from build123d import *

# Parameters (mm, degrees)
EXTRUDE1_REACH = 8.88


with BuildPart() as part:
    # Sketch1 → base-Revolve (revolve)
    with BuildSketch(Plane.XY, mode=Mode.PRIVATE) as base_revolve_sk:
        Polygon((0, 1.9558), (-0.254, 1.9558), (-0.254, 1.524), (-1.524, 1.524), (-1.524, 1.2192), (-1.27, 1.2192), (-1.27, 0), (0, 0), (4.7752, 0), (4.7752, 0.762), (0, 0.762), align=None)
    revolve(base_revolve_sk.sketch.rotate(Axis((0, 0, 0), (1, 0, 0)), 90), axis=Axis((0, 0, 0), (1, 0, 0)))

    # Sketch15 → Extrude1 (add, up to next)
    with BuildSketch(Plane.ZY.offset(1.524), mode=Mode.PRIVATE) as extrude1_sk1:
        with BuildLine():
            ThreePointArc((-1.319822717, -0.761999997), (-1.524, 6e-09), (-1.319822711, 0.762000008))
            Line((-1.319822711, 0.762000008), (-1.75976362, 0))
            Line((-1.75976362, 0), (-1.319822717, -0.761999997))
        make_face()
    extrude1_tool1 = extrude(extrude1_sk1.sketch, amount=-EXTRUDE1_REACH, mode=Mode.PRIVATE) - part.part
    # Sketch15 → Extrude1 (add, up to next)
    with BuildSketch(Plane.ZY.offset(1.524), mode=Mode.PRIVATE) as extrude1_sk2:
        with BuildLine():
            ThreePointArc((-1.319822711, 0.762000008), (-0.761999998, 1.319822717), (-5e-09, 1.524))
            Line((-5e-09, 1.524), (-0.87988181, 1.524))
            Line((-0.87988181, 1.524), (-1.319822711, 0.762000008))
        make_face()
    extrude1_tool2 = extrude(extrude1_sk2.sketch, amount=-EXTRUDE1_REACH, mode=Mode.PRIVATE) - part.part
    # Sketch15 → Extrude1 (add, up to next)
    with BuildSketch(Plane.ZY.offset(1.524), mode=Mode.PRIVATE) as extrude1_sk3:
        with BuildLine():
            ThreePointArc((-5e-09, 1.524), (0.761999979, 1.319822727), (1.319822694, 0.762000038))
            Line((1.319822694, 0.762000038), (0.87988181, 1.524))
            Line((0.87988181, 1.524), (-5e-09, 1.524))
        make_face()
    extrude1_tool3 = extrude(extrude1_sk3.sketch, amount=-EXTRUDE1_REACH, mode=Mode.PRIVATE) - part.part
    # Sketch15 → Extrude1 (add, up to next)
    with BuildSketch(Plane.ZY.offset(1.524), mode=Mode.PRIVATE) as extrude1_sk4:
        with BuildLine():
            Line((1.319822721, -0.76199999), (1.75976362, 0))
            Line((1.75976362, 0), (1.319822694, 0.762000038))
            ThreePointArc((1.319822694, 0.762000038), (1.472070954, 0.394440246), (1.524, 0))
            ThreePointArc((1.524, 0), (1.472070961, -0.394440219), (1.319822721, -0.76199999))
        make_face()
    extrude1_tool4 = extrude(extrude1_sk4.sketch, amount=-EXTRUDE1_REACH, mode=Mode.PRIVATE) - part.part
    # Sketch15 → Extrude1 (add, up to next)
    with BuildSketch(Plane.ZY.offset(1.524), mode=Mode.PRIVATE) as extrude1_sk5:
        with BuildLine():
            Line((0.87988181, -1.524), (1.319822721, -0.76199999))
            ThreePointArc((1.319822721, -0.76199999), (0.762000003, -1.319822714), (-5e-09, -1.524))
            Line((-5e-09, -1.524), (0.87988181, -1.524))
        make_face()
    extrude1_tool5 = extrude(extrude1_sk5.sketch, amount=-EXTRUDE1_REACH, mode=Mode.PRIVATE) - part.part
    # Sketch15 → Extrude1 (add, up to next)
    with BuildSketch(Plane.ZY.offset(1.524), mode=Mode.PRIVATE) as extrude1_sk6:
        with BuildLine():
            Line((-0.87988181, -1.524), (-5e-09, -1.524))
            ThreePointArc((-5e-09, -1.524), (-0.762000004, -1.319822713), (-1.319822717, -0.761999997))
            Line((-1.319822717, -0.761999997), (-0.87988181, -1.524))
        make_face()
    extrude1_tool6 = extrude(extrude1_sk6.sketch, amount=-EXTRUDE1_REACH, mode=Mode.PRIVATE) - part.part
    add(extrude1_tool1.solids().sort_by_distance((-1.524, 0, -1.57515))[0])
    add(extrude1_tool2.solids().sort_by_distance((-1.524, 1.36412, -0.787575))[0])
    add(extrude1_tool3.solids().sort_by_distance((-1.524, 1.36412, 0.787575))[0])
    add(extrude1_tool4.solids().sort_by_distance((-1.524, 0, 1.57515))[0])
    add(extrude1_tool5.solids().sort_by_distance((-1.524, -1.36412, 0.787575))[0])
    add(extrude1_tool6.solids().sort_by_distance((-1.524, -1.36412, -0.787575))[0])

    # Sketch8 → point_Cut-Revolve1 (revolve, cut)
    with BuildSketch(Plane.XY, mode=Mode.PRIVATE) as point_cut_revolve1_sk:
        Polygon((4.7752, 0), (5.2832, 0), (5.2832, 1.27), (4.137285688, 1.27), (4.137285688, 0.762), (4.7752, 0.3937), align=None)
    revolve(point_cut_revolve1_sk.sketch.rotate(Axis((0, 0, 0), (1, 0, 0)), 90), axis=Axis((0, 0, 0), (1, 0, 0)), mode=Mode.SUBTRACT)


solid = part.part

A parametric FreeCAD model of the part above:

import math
import FreeCAD as App
import Part
import Sketcher
Q = App.Units.Quantity

doc = App.newDocument("Part")
body = doc.addObject("PartDesign::Body", "Body")

# Sketch on XY plane
sketch1 = body.newObject("Sketcher::SketchObject", "Sketch")
sketch1.AttachmentSupport = (doc.getObject("XY_Plane"), [""])
sketch1.MapMode = "FlatFace"
sketch1.addGeometry([
    Part.LineSegment(App.Vector(0, 1.96, 0), App.Vector(-0.25, 1.96, 0)),  # 0
    Part.LineSegment(App.Vector(-0.25, 1.96, 0), App.Vector(-0.25, 1.52, 0)),  # 1
    Part.LineSegment(App.Vector(-0.25, 1.52, 0), App.Vector(-1.52, 1.52, 0)),  # 2
    Part.LineSegment(App.Vector(-1.52, 1.52, 0), App.Vector(-1.52, 1.22, 0)),  # 3
    Part.LineSegment(App.Vector(-1.52, 1.22, 0), App.Vector(-1.27, 1.22, 0)),  # 4
    Part.LineSegment(App.Vector(-1.27, 1.22, 0), App.Vector(-1.27, 0, 0)),  # 5
    Part.LineSegment(App.Vector(-1.27, 0, 0), App.Vector(4.78, 0, 0)),  # 6
    Part.LineSegment(App.Vector(4.78, 0, 0), App.Vector(4.78, 0.76, 0)),  # 7
    Part.LineSegment(App.Vector(4.78, 0.76, 0), App.Vector(0, 0.76, 0)),  # 8
    Part.LineSegment(App.Vector(0, 0.76, 0), App.Vector(0, 1.96, 0)),  # 9
], False)
sketch1.addConstraint([
    Sketcher.Constraint("Coincident", 0, 2, 1, 1),
    Sketcher.Constraint("Coincident", 1, 2, 2, 1),
    Sketcher.Constraint("Coincident", 2, 2, 3, 1),
    Sketcher.Constraint("Coincident", 3, 2, 4, 1),
    Sketcher.Constraint("Coincident", 4, 2, 5, 1),
    Sketcher.Constraint("Coincident", 5, 2, 6, 1),
    Sketcher.Constraint("Coincident", 6, 2, 7, 1),
    Sketcher.Constraint("Coincident", 7, 2, 8, 1),
    Sketcher.Constraint("Coincident", 8, 2, 9, 1),
    Sketcher.Constraint("Coincident", 9, 2, 0, 1),
    Sketcher.Constraint("Horizontal", 0),
    Sketcher.Constraint("Vertical", 1),
    Sketcher.Constraint("Horizontal", 2),
    Sketcher.Constraint("Vertical", 3),
    Sketcher.Constraint("Horizontal", 4),
    Sketcher.Constraint("Vertical", 5),
    Sketcher.Constraint("Horizontal", 6),
    Sketcher.Constraint("Vertical", 7),
    Sketcher.Constraint("Horizontal", 8),
    Sketcher.Constraint("Vertical", 9),
    Sketcher.Constraint("PointOnObject", 5, 2, -1),
    Sketcher.Constraint("PointOnObject", 8, 2, -2),
    Sketcher.Constraint("Equal", 0, 4),
    Sketcher.Constraint("DistanceX", 0, 2, 0, 1, Q("0.01 in")),
    Sketcher.Constraint("DistanceX", 2, 2, 2, 1, Q("0.05 in")),
    Sketcher.Constraint("DistanceY", 7, 1, 7, 2, Q("0.03 in")),
    Sketcher.Constraint("DistanceX", 6, 1, 6, 2, Q("0.238 in")),
    Sketcher.Constraint("DistanceY", 1, 2, 1, 1, Q("0.017 in")),
    Sketcher.Constraint("DistanceY", 3, 2, 3, 1, Q("0.012 in")),
    Sketcher.Constraint("DistanceY", 5, 2, 5, 1, Q("0.048 in")),
])
revolution = body.newObject("PartDesign::Revolution", "Revolution")
revolution.Profile = sketch1
revolution.ReferenceAxis = (sketch1, ["H_Axis"])
revolution.Angle = 360

# Sketch on YZ plane
sketch2 = body.newObject("Sketcher::SketchObject", "Sketch001")
sketch2.AttachmentSupport = (doc.getObject("YZ_Plane"), [""])
sketch2.MapMode = "FlatFace"
sketch2.AttachmentOffset = App.Placement(App.Vector(0, 0, -0.06 * 25.4), App.Rotation())
sketch2.addGeometry([
    Part.ArcOfCircle(Part.Circle(App.Vector(0, 0, 0), App.Vector(0, 0, 1), 1.5), math.radians(-120), math.radians(-60)),
    Part.LineSegment(App.Vector(0.8, -1.3, 0), App.Vector(0, -1.8, 0)),
    Part.LineSegment(App.Vector(0, -1.8, 0), App.Vector(-0.8, -1.3, 0)),
], False)
sketch2.addConstraint([
    Sketcher.Constraint("Tangent", 0, 2, 1, 1),
    Sketcher.Constraint("Coincident", 1, 2, 2, 1),
    Sketcher.Constraint("Tangent", 2, 2, 0, 1),
    Sketcher.Constraint("Coincident", 0, 3, -1, 1),
    Sketcher.Constraint("PointOnObject", 1, 2, -2),
    Sketcher.Constraint("Radius", 0, Q("0.06 in")),
    Sketcher.Constraint("Angle", 1, Q("-150 deg")),
])
pad1 = body.newObject("PartDesign::Pad", "Pad")
pad1.Profile = sketch2
pad1.Type = "UpToFirst"

# Sketch on YZ plane
sketch3 = body.newObject("Sketcher::SketchObject", "Sketch002")
sketch3.AttachmentSupport = (doc.getObject("YZ_Plane"), [""])
sketch3.MapMode = "FlatFace"
sketch3.AttachmentOffset = App.Placement(App.Vector(0, 0, -0.06 * 25.4), App.Rotation())
sketch3.addGeometry([
    Part.ArcOfCircle(Part.Circle(App.Vector(0, 0, 0), App.Vector(0, 0, 1), 1.5), math.radians(-60), math.radians(0)),
    Part.LineSegment(App.Vector(1.5, 0, 0), App.Vector(1.5, -0.9, 0)),
    Part.LineSegment(App.Vector(1.5, -0.9, 0), App.Vector(0.8, -1.3, 0)),
], False)
sketch3.addConstraint([
    Sketcher.Constraint("Tangent", 0, 2, 1, 1),
    Sketcher.Constraint("Coincident", 1, 2, 2, 1),
    Sketcher.Constraint("Tangent", 2, 2, 0, 1),
    Sketcher.Constraint("Vertical", 1),
    Sketcher.Constraint("Coincident", 0, 3, -1, 1),
    Sketcher.Constraint("Radius", 0, Q("0.06 in")),
    Sketcher.Constraint("Angle", 2, Q("-150 deg")),
])
pad2 = body.newObject("PartDesign::Pad", "Pad001")
pad2.Profile = sketch3
pad2.Type = "UpToFirst"

# Sketch on YZ plane
sketch4 = body.newObject("Sketcher::SketchObject", "Sketch003")
sketch4.AttachmentSupport = (doc.getObject("YZ_Plane"), [""])
sketch4.MapMode = "FlatFace"
sketch4.AttachmentOffset = App.Placement(App.Vector(0, 0, -0.06 * 25.4), App.Rotation())
sketch4.addGeometry([
    Part.ArcOfCircle(Part.Circle(App.Vector(0, 0, 0), App.Vector(0, 0, 1), 1.5), math.radians(0), math.radians(60)),
    Part.LineSegment(App.Vector(0.8, 1.3, 0), App.Vector(1.5, 0.9, 0)),
    Part.LineSegment(App.Vector(1.5, 0.9, 0), App.Vector(1.5, 0, 0)),
], False)
sketch4.addConstraint([
    Sketcher.Constraint("Tangent", 0, 2, 1, 1),
    Sketcher.Constraint("Coincident", 1, 2, 2, 1),
    Sketcher.Constraint("Tangent", 2, 2, 0, 1),
    Sketcher.Constraint("Vertical", 2),
    Sketcher.Constraint("Coincident", 0, 3, -1, 1),
    Sketcher.Constraint("Radius", 0, Q("0.06 in")),
    Sketcher.Constraint("Angle", 1, Q("-30 deg")),
])
pad3 = body.newObject("PartDesign::Pad", "Pad002")
pad3.Profile = sketch4
pad3.Type = "UpToFirst"

# Sketch on YZ plane
sketch5 = body.newObject("Sketcher::SketchObject", "Sketch004")
sketch5.AttachmentSupport = (doc.getObject("YZ_Plane"), [""])
sketch5.MapMode = "FlatFace"
sketch5.AttachmentOffset = App.Placement(App.Vector(0, 0, -0.06 * 25.4), App.Rotation())
sketch5.addGeometry([
    Part.LineSegment(App.Vector(-0.8, 1.3, 0), App.Vector(0, 1.8, 0)),
    Part.LineSegment(App.Vector(0, 1.8, 0), App.Vector(0.8, 1.3, 0)),
    Part.ArcOfCircle(Part.Circle(App.Vector(0, 0, 0), App.Vector(0, 0, 1), 1.5), math.radians(60), math.radians(90)),
    Part.ArcOfCircle(Part.Circle(App.Vector(0, 0, 0), App.Vector(0, 0, 1), 1.5), math.radians(90), math.radians(120)),
], False)
sketch5.addConstraint([
    Sketcher.Constraint("Coincident", 0, 2, 1, 1),
    Sketcher.Constraint("Tangent", 1, 2, 2, 1),
    Sketcher.Constraint("Tangent", 2, 2, 3, 1),
    Sketcher.Constraint("Tangent", 3, 2, 0, 1),
    Sketcher.Constraint("Coincident", 2, 3, -1, 1),
    Sketcher.Constraint("Equal", 2, 3),
    Sketcher.Constraint("PointOnObject", 0, 2, -2),
    Sketcher.Constraint("PointOnObject", 2, 2, -2),
    Sketcher.Constraint("Radius", 2, Q("0.06 in")),
    Sketcher.Constraint("Angle", 0, Q("30 deg")),
])
pad4 = body.newObject("PartDesign::Pad", "Pad003")
pad4.Profile = sketch5
pad4.Type = "UpToFirst"

# Sketch on YZ plane
sketch6 = body.newObject("Sketcher::SketchObject", "Sketch005")
sketch6.AttachmentSupport = (doc.getObject("YZ_Plane"), [""])
sketch6.MapMode = "FlatFace"
sketch6.AttachmentOffset = App.Placement(App.Vector(0, 0, -0.06 * 25.4), App.Rotation())
sketch6.addGeometry([
    Part.LineSegment(App.Vector(-1.5, 0.9, 0), App.Vector(-0.8, 1.3, 0)),
    Part.ArcOfCircle(Part.Circle(App.Vector(0, 0, 0), App.Vector(0, 0, 1), 1.5), math.radians(120), math.radians(180)),
    Part.LineSegment(App.Vector(-1.5, 0, 0), App.Vector(-1.5, 0.9, 0)),
], False)
sketch6.addConstraint([
    Sketcher.Constraint("Tangent", 0, 2, 1, 1),
    Sketcher.Constraint("Tangent", 1, 2, 2, 1),
    Sketcher.Constraint("Coincident", 2, 2, 0, 1),
    Sketcher.Constraint("Vertical", 2),
    Sketcher.Constraint("Coincident", 1, 3, -1, 1),
    Sketcher.Constraint("Radius", 1, Q("0.06 in")),
    Sketcher.Constraint("Angle", 0, Q("30 deg")),
])
pad5 = body.newObject("PartDesign::Pad", "Pad004")
pad5.Profile = sketch6
pad5.Type = "UpToFirst"

# Sketch on YZ plane
sketch7 = body.newObject("Sketcher::SketchObject", "Sketch006")
sketch7.AttachmentSupport = (doc.getObject("YZ_Plane"), [""])
sketch7.MapMode = "FlatFace"
sketch7.AttachmentOffset = App.Placement(App.Vector(0, 0, -0.06 * 25.4), App.Rotation())
sketch7.addGeometry([
    Part.LineSegment(App.Vector(-1.5, -0.9, 0), App.Vector(-1.5, 0, 0)),
    Part.ArcOfCircle(Part.Circle(App.Vector(0, 0, 0), App.Vector(0, 0, 1), 1.5), math.radians(-180), math.radians(-120)),
    Part.LineSegment(App.Vector(-0.8, -1.3, 0), App.Vector(-1.5, -0.9, 0)),
], False)
sketch7.addConstraint([
    Sketcher.Constraint("Tangent", 0, 2, 1, 1),
    Sketcher.Constraint("Tangent", 1, 2, 2, 1),
    Sketcher.Constraint("Coincident", 2, 2, 0, 1),
    Sketcher.Constraint("Vertical", 0),
    Sketcher.Constraint("Coincident", 1, 3, -1, 1),
    Sketcher.Constraint("Radius", 1, Q("0.06 in")),
    Sketcher.Constraint("Angle", 2, Q("150 deg")),
])
pad6 = body.newObject("PartDesign::Pad", "Pad005")
pad6.Profile = sketch7
pad6.Type = "UpToFirst"

# Sketch on XY plane
sketch8 = body.newObject("Sketcher::SketchObject", "Sketch007")
sketch8.AttachmentSupport = (doc.getObject("XY_Plane"), [""])
sketch8.MapMode = "FlatFace"
sketch8.addGeometry([
    Part.LineSegment(App.Vector(4.78, 0, 0), App.Vector(5.28, 0, 0)),  # 0
    Part.LineSegment(App.Vector(5.28, 0, 0), App.Vector(5.28, 1.27, 0)),  # 1
    Part.LineSegment(App.Vector(5.28, 1.27, 0), App.Vector(4.14, 1.27, 0)),  # 2
    Part.LineSegment(App.Vector(4.14, 1.27, 0), App.Vector(4.14, 0.76, 0)),  # 3
    Part.LineSegment(App.Vector(4.14, 0.76, 0), App.Vector(4.78, 0.39, 0)),  # 4
    Part.LineSegment(App.Vector(4.78, 0.39, 0), App.Vector(4.78, 0, 0)),  # 5
], False)
sketch8.addConstraint([
    Sketcher.Constraint("Coincident", 0, 2, 1, 1),
    Sketcher.Constraint("Coincident", 1, 2, 2, 1),
    Sketcher.Constraint("Coincident", 2, 2, 3, 1),
    Sketcher.Constraint("Coincident", 3, 2, 4, 1),
    Sketcher.Constraint("Coincident", 4, 2, 5, 1),
    Sketcher.Constraint("Coincident", 5, 2, 0, 1),
    Sketcher.Constraint("Horizontal", 0),
    Sketcher.Constraint("Vertical", 1),
    Sketcher.Constraint("Horizontal", 2),
    Sketcher.Constraint("Vertical", 3),
    Sketcher.Constraint("Vertical", 5),
    Sketcher.Constraint("PointOnObject", 0, 2, -1),
    Sketcher.Constraint("Equal", 0, 3),
    Sketcher.Constraint("Angle", 4, Q("-30 deg")),
    Sketcher.Constraint("DistanceX", 0, 1, 0, 2, Q("0.02 in")),
    Sketcher.Constraint("DistanceY", 1, 1, 1, 2, Q("0.05 in")),
    Sketcher.Constraint("Distance", 4, Q("0.029 in")),
    Sketcher.Constraint("DistanceX", -1, 1, 0, 2, Q("0.208 in")),
])
groove = body.newObject("PartDesign::Groove", "Groove")
groove.Profile = sketch8
groove.ReferenceAxis = (sketch8, ["H_Axis"])
groove.Angle = 360

doc.recompute()
